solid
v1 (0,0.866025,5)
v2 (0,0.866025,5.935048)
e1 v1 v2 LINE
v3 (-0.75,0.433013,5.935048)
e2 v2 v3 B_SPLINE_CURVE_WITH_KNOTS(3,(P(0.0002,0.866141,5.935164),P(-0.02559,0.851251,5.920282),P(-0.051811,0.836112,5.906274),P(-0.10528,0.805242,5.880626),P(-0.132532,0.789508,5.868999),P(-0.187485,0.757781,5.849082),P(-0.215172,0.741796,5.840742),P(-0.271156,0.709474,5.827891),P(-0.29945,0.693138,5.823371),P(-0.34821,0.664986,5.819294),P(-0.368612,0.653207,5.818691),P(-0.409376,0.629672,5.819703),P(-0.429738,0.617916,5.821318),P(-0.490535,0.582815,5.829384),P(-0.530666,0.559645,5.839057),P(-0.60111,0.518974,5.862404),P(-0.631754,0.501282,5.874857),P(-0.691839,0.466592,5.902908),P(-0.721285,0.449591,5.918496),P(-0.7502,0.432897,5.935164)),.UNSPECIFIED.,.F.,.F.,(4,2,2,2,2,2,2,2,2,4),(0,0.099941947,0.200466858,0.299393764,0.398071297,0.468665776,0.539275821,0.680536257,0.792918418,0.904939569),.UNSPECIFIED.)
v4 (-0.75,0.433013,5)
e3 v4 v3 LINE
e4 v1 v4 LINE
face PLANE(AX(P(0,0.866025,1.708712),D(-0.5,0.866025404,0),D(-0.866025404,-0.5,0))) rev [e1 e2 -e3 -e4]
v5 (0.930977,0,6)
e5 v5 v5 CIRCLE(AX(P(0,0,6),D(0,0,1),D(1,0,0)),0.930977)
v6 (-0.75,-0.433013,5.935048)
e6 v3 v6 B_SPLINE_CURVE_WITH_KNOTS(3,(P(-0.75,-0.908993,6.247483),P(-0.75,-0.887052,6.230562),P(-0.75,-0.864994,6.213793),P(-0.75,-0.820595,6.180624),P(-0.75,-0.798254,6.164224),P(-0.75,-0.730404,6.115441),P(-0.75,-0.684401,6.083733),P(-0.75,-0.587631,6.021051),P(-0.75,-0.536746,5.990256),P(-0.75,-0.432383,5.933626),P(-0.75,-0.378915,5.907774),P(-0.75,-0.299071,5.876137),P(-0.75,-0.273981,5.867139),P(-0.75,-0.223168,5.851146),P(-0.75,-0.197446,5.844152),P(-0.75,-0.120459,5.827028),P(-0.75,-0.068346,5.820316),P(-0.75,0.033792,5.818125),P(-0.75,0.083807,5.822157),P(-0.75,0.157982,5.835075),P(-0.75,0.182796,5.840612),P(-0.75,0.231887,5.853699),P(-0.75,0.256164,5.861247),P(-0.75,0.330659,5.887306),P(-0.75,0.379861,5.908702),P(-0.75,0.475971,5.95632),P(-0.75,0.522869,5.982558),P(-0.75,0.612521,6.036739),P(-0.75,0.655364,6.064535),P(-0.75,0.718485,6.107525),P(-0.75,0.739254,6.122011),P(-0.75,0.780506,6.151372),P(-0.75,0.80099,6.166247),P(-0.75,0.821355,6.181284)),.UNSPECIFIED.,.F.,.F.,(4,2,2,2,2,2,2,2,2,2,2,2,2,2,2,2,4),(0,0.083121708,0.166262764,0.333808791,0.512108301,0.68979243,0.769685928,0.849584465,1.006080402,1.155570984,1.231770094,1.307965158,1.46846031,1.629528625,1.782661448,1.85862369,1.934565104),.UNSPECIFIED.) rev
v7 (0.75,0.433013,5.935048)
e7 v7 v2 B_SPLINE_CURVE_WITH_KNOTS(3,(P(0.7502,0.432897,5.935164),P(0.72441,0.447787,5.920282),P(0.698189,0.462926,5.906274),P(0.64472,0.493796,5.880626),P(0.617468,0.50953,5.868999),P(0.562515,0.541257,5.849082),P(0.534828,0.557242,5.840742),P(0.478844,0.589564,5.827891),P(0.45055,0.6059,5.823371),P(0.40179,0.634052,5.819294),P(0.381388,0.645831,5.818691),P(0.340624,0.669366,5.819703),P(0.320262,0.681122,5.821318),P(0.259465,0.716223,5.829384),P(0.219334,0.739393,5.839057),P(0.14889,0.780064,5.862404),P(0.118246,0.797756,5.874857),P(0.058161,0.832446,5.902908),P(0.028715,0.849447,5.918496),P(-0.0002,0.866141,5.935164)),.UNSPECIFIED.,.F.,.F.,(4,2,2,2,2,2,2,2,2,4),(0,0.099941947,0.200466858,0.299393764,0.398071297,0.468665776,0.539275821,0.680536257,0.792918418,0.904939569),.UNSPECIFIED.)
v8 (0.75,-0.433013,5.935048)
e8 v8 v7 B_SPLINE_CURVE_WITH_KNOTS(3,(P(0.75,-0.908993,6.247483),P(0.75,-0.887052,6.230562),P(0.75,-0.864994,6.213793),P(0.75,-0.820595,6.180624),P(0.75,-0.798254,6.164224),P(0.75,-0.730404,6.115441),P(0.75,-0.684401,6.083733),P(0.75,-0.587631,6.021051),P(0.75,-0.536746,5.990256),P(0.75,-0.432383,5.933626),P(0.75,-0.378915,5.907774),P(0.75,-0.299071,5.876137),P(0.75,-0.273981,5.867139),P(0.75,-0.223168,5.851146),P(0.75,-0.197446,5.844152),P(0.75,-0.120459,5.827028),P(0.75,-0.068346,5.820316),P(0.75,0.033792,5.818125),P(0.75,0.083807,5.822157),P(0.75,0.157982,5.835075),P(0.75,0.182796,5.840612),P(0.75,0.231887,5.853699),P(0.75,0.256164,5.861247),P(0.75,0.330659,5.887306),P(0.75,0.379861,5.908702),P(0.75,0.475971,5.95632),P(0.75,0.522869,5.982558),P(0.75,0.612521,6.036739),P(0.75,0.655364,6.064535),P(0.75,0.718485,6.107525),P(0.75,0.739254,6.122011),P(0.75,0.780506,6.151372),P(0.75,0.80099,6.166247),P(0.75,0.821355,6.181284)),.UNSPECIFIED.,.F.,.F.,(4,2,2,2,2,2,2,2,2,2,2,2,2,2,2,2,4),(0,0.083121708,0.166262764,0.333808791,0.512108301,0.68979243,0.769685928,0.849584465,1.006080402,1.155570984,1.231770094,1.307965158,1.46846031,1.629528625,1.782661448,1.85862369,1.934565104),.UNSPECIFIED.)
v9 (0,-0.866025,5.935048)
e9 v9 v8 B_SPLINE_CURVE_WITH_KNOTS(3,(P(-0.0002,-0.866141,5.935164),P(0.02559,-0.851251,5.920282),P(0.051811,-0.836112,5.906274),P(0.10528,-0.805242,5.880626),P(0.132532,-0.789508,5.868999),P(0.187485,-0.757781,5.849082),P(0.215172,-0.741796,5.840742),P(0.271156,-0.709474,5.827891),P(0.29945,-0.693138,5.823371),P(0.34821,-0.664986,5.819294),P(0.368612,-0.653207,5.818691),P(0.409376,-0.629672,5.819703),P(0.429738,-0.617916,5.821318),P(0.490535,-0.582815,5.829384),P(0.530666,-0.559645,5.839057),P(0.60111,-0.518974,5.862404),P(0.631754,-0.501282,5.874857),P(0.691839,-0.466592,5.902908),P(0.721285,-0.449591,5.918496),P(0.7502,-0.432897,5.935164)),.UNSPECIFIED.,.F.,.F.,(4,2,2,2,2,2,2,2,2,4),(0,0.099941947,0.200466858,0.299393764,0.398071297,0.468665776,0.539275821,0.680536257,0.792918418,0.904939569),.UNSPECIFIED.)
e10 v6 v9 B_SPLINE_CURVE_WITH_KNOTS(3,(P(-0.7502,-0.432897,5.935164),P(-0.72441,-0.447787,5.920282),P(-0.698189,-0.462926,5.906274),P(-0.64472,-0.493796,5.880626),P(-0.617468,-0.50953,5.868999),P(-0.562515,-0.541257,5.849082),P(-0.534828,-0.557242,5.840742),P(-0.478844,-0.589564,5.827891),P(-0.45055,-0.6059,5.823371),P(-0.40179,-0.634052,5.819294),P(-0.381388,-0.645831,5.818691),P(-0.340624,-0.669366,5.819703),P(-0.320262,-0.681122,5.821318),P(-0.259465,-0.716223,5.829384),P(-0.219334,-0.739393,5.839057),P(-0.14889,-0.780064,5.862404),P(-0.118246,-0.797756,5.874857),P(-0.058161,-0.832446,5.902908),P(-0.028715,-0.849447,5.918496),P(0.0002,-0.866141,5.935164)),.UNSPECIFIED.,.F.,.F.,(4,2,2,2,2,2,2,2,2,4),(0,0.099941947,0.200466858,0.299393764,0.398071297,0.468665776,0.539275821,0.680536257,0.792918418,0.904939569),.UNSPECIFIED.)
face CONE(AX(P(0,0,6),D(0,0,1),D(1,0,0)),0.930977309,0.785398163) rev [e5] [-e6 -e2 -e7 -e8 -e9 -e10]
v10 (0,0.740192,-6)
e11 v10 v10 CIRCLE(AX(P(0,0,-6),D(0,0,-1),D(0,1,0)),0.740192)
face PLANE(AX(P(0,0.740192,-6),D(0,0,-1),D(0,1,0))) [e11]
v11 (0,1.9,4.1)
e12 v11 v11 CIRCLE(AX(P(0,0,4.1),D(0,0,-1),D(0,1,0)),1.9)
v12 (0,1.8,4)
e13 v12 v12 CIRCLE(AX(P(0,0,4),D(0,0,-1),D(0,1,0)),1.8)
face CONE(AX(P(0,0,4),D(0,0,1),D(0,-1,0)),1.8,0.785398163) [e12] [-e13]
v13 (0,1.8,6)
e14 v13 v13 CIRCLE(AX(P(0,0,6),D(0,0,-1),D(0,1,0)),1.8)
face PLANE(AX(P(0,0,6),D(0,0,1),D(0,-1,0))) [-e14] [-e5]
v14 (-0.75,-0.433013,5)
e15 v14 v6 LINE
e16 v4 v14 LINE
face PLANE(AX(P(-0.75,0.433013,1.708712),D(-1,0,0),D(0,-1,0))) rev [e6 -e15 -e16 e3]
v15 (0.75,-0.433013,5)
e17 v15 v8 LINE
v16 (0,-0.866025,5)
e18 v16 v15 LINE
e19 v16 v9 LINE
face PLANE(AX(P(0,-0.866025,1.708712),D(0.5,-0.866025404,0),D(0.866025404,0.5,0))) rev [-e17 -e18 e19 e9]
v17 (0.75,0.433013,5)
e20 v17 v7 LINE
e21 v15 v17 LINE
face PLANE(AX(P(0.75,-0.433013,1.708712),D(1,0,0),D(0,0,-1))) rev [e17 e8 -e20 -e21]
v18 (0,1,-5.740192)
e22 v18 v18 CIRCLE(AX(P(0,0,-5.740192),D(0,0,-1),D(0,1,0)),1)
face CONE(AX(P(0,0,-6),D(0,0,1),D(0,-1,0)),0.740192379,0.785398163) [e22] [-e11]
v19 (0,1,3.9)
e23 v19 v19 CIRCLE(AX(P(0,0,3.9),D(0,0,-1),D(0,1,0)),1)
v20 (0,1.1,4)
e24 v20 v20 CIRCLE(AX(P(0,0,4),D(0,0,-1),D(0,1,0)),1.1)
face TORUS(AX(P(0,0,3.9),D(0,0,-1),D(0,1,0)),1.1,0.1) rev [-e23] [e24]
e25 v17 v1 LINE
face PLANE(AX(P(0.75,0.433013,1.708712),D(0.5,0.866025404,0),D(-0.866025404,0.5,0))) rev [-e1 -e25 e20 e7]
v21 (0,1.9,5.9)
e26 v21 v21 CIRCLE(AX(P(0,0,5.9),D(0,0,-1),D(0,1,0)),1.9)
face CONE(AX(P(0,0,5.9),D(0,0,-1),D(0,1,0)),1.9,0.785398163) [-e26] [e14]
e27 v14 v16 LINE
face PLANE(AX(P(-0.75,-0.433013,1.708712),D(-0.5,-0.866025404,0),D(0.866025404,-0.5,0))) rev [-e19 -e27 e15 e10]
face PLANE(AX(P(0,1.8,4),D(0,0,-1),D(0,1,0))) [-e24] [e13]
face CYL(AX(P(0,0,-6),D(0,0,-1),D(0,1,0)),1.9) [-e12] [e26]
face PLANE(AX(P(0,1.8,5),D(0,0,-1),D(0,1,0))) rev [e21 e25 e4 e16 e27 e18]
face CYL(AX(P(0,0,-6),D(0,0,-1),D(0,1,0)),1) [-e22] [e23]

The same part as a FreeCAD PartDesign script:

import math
import FreeCAD as App
import Part
import Sketcher

V = App.Vector
Q = App.Units.Quantity


def faces_at(feature, points):
    """Names of the faces that lie closest to the given points."""
    faces = feature.Shape.Faces
    near = lambda p: min(range(len(faces)), key=lambda i: faces[i].distToShape(Part.Vertex(*p))[0])
    return sorted({f"Face{near(p) + 1}" for p in points})

doc = App.newDocument("Part")
body = doc.addObject("PartDesign::Body", "Body")

sketch1 = body.newObject("Sketcher::SketchObject", "Sketch")
sketch1.AttachmentSupport = (doc.getObject("YZ_Plane"), [""])
sketch1.MapMode = "FlatFace"
sketch1.addGeometry([
    Part.LineSegment(V(1.8, 6, 0), V(0, 6, 0)),
    Part.LineSegment(V(0, 6, 0), V(0, -6, 0)),
    Part.LineSegment(V(0, -6, 0), V(0.74, -6, 0)),
    Part.LineSegment(V(0.74, -6, 0), V(1, -5.74, 0)),
    Part.LineSegment(V(1, -5.74, 0), V(1, 3.9, 0)),
    Part.ArcOfCircle(Part.Circle(V(1.1, 3.9, 0), V(0, 0, 1), 0.1), math.radians(90), math.radians(180)),
    Part.LineSegment(V(1.1, 4, 0), V(1.8, 4, 0)),
    Part.LineSegment(V(1.8, 4, 0), V(1.9, 4.1, 0)),
    Part.LineSegment(V(1.9, 4.1, 0), V(1.9, 5.9, 0)),
    Part.LineSegment(V(1.9, 5.9, 0), V(1.8, 6, 0)),
], False)
sketch1.addConstraint([
    Sketcher.Constraint("Coincident", 0, 2, 1, 1),
    Sketcher.Constraint("Coincident", 1, 2, 2, 1),
    Sketcher.Constraint("Coincident", 2, 2, 3, 1),
    Sketcher.Constraint("Coincident", 3, 2, 4, 1),
    Sketcher.Constraint("Tangent", 4, 2, 5, 2),
    Sketcher.Constraint("Tangent", 5, 1, 6, 1),
    Sketcher.Constraint("Coincident", 6, 2, 7, 1),
    Sketcher.Constraint("Coincident", 7, 2, 8, 1),
    Sketcher.Constraint("Coincident", 8, 2, 9, 1),
    Sketcher.Constraint("Coincident", 9, 2, 0, 1),
    Sketcher.Constraint("Horizontal", 0),
    Sketcher.Constraint("Vertical", 1),
    Sketcher.Constraint("Horizontal", 2),
    Sketcher.Constraint("Vertical", 4),
    Sketcher.Constraint("Horizontal", 6),
    Sketcher.Constraint("Vertical", 8),
    Sketcher.Constraint("Symmetric", 0, 2, 1, 2, -1, 1),
    Sketcher.Constraint("Parallel", 3, 7),
    Sketcher.Constraint("Perpendicular", 7, 9),
    Sketcher.Constraint("Vertical", 6, 2, 9, 2),
    Sketcher.Constraint("Equal", 0, 8),
    Sketcher.Constraint("Equal", 7, 9),
    Sketcher.Constraint("Radius", 5, Q("0.1 mm")),
    Sketcher.Constraint("DistanceY", 1, 2, 1, 1, Q("12 mm")),
    Sketcher.Constraint("DistanceX", 0, 2, 0, 1, Q("1.8 mm")),
    Sketcher.Constraint("DistanceX", 6, 1, 6, 2, Q("0.7 mm")),
    Sketcher.Constraint("DistanceY", -1, 1, 5, 1, Q("4 mm")),
    Sketcher.Constraint("DistanceX", 2, 1, 2, 2, Q("0.740192 mm")),
])
revolution = body.newObject("PartDesign::Revolution", "Revolution")
revolution.Profile = sketch1
revolution.ReferenceAxis = (sketch1, ["V_Axis"])
revolution.Angle = 360

sketch2 = body.newObject("Sketcher::SketchObject", "Sketch001")
sketch2.AttachmentSupport = (doc.getObject("XY_Plane"), [""])
sketch2.MapMode = "FlatFace"
sketch2.AttachmentOffset = App.Placement(V(0, 0, 6), App.Rotation())
sketch2.addGeometry([
    Part.LineSegment(V(0.8, -0.4, 0), V(0.8, 0.4, 0)),
    Part.LineSegment(V(0.8, 0.4, 0), V(0, 0.9, 0)),
    Part.LineSegment(V(0, 0.9, 0), V(-0.8, 0.4, 0)),
    Part.LineSegment(V(-0.8, 0.4, 0), V(-0.8, -0.4, 0)),
    Part.LineSegment(V(-0.8, -0.4, 0), V(0, -0.9, 0)),
    Part.LineSegment(V(0, -0.9, 0), V(0.8, -0.4, 0)),
], False)
sketch2.addConstraint([
    Sketcher.Constraint("Coincident", 0, 2, 1, 1),
    Sketcher.Constraint("Coincident", 1, 2, 2, 1),
    Sketcher.Constraint("Coincident", 2, 2, 3, 1),
    Sketcher.Constraint("Coincident", 3, 2, 4, 1),
    Sketcher.Constraint("Coincident", 4, 2, 5, 1),
    Sketcher.Constraint("Coincident", 5, 2, 0, 1),
    Sketcher.Constraint("Vertical", 0),
    Sketcher.Constraint("Vertical", 3),
    Sketcher.Constraint("Symmetric", 0, 2, 3, 2, -1, 1),
    Sketcher.Constraint("Symmetric", 1, 2, 4, 2, -1, 1),
    Sketcher.Constraint("PointOnObject", 1, 2, -2),
    Sketcher.Constraint("Parallel", 2, 5),
    Sketcher.Constraint("Horizontal", 0, 2, 2, 2),
    Sketcher.Constraint("Angle", 1, Q("150 deg")),
    Sketcher.Constraint("DistanceX", 2, 2, 0, 2, Q("1.5 mm")),
    Sketcher.Constraint("DistanceY", 0, 1, 0, 2, Q("0.866025 mm")),
])
pocket1 = body.newObject("PartDesign::Pocket", "Pocket")
pocket1.Profile = sketch2
pocket1.Length = 1
body2 = doc.addObject("PartDesign::Body", "Body001")

sketch3 = body2.newObject("Sketcher::SketchObject", "Sketch002")
sketch3.AttachmentSupport = (doc.getObject("XY_Plane001"), [""])
sketch3.MapMode = "FlatFace"
sketch3.AttachmentOffset = App.Placement(V(0, 0, 6), App.Rotation())
sketch3.addGeometry(Part.Circle(V(0, 0, 0), V(0, 0, 1), 0.9), False)
sketch3.addConstraint([
    Sketcher.Constraint("Coincident", 0, 3, -1, 1),
    Sketcher.Constraint("Diameter", 0, Q("1.861955 mm")),
])
pad1 = body2.newObject("PartDesign::Pad", "Pad")
pad1.Profile = sketch3
pad1.Length = 1
pad1.Reversed = True
doc.recompute()

datumplane = body2.newObject("PartDesign::Plane", "DatumPlane")
datumplane.AttachmentSupport = (doc.getObject("XY_Plane001"), [""])
datumplane.MapMode = "FlatFace"
datumplane.AttachmentOffset = App.Placement(V(0, 0, 6), App.Rotation())
draft = body2.newObject("PartDesign::Draft", "Draft")
draft.Base = (pad1, faces_at(pad1, [(-0.931, 0, 5.5)]))
draft.NeutralPlane = (datumplane, [""])
draft.Angle = 45
draft.Reversed = True
doc.recompute()

boolean = body.newObject("PartDesign::Boolean", "Boolean")
boolean.Type = "Cut"
boolean.addObjects([body2])

doc.recompute()
